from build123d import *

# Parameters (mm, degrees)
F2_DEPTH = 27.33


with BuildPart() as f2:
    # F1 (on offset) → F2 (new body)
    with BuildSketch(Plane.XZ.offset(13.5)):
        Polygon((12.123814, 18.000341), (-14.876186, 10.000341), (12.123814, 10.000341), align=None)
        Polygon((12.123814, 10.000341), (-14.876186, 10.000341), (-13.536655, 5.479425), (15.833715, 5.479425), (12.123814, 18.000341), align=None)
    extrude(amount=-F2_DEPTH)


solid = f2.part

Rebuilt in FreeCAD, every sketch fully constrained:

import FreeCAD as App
import Part
import Sketcher
from FreeCAD import Vector

doc = App.newDocument("Part")
params = doc.addObject("Spreadsheet::Sheet", "Params")
for row, (alias, value) in enumerate([
    ("pad1_length", "27.33 mm"),
], start=1):
    params.set(f"A{row}", alias)
    params.set(f"B{row}", "=" + value)
    params.setAlias(f"B{row}", alias)

body = doc.addObject("PartDesign::Body", "Body")

# Sketch on XZ plane
sketch1 = doc.addObject("Sketcher::SketchObject", "Sketch")
body.addObject(sketch1)
sketch1.AttachmentSupport = (doc.XZ_Plane, [""])
sketch1.MapMode = "FlatFace"
sketch1.AttachmentOffset = App.Placement(Vector(0, 0, 13.5), App.Rotation())
sketch1.addGeometry([
    Part.LineSegment(Vector(12.1, 18, 0), Vector(-14.9, 10, 0)),
    Part.LineSegment(Vector(-14.9, 10, 0), Vector(-13.5, 5.5, 0)),
    Part.LineSegment(Vector(-13.5, 5.5, 0), Vector(15.8, 5.5, 0)),
    Part.LineSegment(Vector(15.8, 5.5, 0), Vector(12.1, 18, 0)),
], False)
sketch1.addConstraint([
    Sketcher.Constraint("Coincident", 0, 2, 1, 1),
    Sketcher.Constraint("Coincident", 1, 2, 2, 1),
    Sketcher.Constraint("Coincident", 2, 2, 3, 1),
    Sketcher.Constraint("Coincident", 3, 2, 0, 1),
    Sketcher.Constraint("Horizontal", 2),
    Sketcher.Constraint("Perpendicular", 0, 1),
    Sketcher.Constraint("Parallel", 1, 3),
    Sketcher.Constraint("DistanceX", 0, 2, 3, 2, 27.0),
    Sketcher.Constraint("DistanceY", 0, 2, 3, 2, 8.0),
    Sketcher.Constraint("DistanceX", 0, 2, 2, 2, 30.709901),
    Sketcher.Constraint("DistanceY", -1, 1, 0, 2, 10.000341),
    Sketcher.Constraint("DistanceX", 0, 2, -1, 1, 14.876186),
])
pad1 = doc.addObject("PartDesign::Pad", "Pad")
body.addObject(pad1)
pad1.Profile = sketch1
pad1.setExpression("Length", "Params.pad1_length")
pad1.Reversed = True

doc.recompute()
